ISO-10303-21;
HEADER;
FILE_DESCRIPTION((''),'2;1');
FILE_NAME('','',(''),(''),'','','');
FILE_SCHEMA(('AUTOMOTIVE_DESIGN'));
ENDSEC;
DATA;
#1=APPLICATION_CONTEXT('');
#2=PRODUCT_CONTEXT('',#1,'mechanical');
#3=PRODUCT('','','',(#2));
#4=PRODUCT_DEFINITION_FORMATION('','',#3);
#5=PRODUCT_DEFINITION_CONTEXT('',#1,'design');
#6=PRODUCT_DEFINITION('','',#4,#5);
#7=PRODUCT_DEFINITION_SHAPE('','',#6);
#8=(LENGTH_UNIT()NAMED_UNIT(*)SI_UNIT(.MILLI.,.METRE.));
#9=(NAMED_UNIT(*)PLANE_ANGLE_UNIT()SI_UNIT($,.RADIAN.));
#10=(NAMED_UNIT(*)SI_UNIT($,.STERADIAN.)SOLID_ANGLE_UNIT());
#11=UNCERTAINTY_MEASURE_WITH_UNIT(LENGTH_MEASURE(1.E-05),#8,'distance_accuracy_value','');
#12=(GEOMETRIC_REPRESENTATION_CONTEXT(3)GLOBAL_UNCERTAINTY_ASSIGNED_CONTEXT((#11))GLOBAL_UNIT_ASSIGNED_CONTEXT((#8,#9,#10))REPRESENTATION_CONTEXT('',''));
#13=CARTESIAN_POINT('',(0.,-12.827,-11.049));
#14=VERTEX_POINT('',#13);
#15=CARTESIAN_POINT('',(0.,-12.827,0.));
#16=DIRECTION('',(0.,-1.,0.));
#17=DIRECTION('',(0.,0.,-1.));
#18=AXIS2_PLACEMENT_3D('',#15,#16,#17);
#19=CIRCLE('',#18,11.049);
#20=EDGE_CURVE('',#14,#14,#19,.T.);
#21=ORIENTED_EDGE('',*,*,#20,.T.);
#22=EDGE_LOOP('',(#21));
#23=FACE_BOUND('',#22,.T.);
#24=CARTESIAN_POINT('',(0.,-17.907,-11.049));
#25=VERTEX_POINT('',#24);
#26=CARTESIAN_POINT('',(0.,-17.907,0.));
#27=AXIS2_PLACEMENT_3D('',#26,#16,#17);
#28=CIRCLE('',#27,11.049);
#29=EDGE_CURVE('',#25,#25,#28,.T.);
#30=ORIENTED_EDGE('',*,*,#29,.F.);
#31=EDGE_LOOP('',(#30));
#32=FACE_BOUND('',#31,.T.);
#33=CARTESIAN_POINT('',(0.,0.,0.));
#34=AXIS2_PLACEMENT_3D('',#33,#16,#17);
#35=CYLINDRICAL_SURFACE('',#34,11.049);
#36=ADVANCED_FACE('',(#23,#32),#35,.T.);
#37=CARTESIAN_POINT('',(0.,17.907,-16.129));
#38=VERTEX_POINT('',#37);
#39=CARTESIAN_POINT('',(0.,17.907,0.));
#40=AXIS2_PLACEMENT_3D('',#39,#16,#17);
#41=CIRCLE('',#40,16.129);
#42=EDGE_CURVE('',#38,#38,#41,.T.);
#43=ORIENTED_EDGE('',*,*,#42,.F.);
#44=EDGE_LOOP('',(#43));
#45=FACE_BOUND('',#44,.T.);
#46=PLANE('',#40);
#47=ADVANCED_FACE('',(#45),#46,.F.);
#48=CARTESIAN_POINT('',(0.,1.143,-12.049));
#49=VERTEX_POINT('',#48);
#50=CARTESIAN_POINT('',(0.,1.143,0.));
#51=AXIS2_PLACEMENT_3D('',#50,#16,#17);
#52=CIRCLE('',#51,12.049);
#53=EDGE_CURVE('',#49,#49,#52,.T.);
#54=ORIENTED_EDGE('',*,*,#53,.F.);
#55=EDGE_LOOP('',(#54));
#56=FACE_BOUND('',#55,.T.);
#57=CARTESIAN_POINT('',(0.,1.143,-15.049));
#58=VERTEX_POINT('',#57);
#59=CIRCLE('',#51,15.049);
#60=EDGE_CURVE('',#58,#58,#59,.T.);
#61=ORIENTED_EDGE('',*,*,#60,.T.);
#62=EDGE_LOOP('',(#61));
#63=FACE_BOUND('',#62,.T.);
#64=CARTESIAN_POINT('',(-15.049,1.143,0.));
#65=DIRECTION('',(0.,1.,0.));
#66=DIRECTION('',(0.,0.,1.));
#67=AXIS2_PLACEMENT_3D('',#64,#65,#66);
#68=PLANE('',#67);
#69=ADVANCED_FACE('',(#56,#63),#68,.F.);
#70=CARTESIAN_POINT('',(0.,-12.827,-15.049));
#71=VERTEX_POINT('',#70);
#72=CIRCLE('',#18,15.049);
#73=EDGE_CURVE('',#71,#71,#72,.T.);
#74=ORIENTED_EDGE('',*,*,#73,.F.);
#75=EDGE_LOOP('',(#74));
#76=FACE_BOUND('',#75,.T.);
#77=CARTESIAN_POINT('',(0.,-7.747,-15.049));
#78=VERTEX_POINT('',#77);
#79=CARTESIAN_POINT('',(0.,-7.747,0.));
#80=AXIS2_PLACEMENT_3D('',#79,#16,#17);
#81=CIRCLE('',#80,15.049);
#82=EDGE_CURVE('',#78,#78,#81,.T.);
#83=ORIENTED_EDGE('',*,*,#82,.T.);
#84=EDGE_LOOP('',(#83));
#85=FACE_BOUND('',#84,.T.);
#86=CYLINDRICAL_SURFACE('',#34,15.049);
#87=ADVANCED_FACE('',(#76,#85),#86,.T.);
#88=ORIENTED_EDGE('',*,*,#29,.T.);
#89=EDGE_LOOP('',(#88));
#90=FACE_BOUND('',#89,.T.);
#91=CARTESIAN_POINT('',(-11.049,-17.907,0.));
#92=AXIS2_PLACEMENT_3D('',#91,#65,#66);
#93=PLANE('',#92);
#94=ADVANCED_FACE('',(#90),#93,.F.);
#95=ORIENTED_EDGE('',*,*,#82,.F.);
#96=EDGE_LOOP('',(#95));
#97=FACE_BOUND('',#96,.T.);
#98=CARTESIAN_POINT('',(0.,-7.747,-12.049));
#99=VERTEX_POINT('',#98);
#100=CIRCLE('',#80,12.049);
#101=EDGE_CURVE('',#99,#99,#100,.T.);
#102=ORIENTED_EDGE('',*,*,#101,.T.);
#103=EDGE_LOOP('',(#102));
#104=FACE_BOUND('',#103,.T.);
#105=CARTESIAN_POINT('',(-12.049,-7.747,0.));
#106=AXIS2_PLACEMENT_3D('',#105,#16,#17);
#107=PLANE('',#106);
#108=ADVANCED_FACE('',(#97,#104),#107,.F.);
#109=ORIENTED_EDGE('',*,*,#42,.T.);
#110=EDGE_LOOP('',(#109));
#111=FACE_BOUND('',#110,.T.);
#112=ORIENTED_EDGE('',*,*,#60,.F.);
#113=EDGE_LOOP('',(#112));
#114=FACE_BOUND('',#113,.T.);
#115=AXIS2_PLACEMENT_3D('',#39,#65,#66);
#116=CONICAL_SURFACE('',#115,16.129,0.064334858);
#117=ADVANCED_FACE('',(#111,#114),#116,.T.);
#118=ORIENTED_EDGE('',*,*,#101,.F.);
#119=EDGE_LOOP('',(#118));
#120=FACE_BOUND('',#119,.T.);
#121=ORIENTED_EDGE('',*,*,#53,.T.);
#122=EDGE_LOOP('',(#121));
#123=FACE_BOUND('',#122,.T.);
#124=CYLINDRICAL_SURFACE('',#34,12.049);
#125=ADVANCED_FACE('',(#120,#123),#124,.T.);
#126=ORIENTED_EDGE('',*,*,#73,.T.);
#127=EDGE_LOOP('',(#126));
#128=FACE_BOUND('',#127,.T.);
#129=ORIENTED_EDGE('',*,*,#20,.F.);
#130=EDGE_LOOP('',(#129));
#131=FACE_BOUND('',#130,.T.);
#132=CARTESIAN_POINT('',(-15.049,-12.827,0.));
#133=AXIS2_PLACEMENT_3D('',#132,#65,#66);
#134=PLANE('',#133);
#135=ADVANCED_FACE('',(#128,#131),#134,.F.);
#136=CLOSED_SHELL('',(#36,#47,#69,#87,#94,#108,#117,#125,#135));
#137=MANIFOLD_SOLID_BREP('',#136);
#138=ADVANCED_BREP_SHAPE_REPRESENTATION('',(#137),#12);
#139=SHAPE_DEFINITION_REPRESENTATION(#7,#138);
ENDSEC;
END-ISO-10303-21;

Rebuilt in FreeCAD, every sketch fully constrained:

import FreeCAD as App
import Part
import Sketcher
from FreeCAD import Vector
Q = App.Units.Quantity


def add_polygon(sketch, points):
    """Adds a closed chain of lines whose ends are joined by coincident constraints."""
    first, n = sketch.GeometryCount, len(points)
    for a, b in zip(points, points[1:] + points[:1]):
        sketch.addGeometry(Part.LineSegment(App.Vector(*a, 0), App.Vector(*b, 0)), False)
    for i in range(n):
        sketch.addConstraint(Sketcher.Constraint("Coincident", first + i, 2, first + (i + 1) % n, 1))

doc = App.newDocument("Part")
body = doc.addObject("PartDesign::Body", "Body")

# Sketch on XY plane
sketch1 = body.newObject("Sketcher::SketchObject", "Sketch")
sketch1.AttachmentSupport = (doc.getObject("XY_Plane"), [""])
sketch1.MapMode = "FlatFace"
add_polygon(sketch1, [(0, 17.9), (-16.1, 17.9), (-15, 1.1), (-12, 1.1), (-12, -7.7), (-15, -7.7), (-15, -12.8), (-11, -12.8), (-11, -17.9), (0, -17.9)])  # lines 0-9
sketch1.addConstraint(Sketcher.Constraint("Horizontal", 0))
sketch1.addConstraint(Sketcher.Constraint("Horizontal", 2))
sketch1.addConstraint(Sketcher.Constraint("Vertical", 3))
sketch1.addConstraint(Sketcher.Constraint("Horizontal", 4))
sketch1.addConstraint(Sketcher.Constraint("Vertical", 5))
sketch1.addConstraint(Sketcher.Constraint("Horizontal", 6))
sketch1.addConstraint(Sketcher.Constraint("Vertical", 7))
sketch1.addConstraint(Sketcher.Constraint("Horizontal", 8))
sketch1.addConstraint(Sketcher.Constraint("Vertical", 9))
sketch1.addConstraint(Sketcher.Constraint("Symmetric", 8, 2, 9, 2, -1, 1))
sketch1.addConstraint(Sketcher.Constraint("Vertical", 1, 2, 4, 2))
sketch1.addConstraint(Sketcher.Constraint("Equal", 5, 7))
sketch1.addConstraint(Sketcher.Constraint("DistanceY", 5, 2, 5, 1, Q("0.2 in")))
sketch1.addConstraint(Sketcher.Constraint("DistanceY", 3, 2, 3, 1, Q("0.35 in")))
sketch1.addConstraint(Sketcher.Constraint("DistanceY", 9, 1, 9, 2, Q("1.41 in")))
sketch1.addConstraint(Sketcher.Constraint("DistanceX", 0, 2, 0, 1, Q("0.635 in")))
sketch1.addConstraint(Sketcher.Constraint("DistanceX", 8, 1, 8, 2, Q("0.435 in")))
sketch1.addConstraint(Sketcher.Constraint("DistanceX", 2, 1, 2, 2, 3.0))
sketch1.addConstraint(Sketcher.Constraint("DistanceX", 6, 1, 6, 2, 4.0))
revolution = body.newObject("PartDesign::Revolution", "Revolution")
revolution.Profile = sketch1
revolution.ReferenceAxis = (sketch1, ["V_Axis"])
revolution.Angle = 360

doc.recompute()
